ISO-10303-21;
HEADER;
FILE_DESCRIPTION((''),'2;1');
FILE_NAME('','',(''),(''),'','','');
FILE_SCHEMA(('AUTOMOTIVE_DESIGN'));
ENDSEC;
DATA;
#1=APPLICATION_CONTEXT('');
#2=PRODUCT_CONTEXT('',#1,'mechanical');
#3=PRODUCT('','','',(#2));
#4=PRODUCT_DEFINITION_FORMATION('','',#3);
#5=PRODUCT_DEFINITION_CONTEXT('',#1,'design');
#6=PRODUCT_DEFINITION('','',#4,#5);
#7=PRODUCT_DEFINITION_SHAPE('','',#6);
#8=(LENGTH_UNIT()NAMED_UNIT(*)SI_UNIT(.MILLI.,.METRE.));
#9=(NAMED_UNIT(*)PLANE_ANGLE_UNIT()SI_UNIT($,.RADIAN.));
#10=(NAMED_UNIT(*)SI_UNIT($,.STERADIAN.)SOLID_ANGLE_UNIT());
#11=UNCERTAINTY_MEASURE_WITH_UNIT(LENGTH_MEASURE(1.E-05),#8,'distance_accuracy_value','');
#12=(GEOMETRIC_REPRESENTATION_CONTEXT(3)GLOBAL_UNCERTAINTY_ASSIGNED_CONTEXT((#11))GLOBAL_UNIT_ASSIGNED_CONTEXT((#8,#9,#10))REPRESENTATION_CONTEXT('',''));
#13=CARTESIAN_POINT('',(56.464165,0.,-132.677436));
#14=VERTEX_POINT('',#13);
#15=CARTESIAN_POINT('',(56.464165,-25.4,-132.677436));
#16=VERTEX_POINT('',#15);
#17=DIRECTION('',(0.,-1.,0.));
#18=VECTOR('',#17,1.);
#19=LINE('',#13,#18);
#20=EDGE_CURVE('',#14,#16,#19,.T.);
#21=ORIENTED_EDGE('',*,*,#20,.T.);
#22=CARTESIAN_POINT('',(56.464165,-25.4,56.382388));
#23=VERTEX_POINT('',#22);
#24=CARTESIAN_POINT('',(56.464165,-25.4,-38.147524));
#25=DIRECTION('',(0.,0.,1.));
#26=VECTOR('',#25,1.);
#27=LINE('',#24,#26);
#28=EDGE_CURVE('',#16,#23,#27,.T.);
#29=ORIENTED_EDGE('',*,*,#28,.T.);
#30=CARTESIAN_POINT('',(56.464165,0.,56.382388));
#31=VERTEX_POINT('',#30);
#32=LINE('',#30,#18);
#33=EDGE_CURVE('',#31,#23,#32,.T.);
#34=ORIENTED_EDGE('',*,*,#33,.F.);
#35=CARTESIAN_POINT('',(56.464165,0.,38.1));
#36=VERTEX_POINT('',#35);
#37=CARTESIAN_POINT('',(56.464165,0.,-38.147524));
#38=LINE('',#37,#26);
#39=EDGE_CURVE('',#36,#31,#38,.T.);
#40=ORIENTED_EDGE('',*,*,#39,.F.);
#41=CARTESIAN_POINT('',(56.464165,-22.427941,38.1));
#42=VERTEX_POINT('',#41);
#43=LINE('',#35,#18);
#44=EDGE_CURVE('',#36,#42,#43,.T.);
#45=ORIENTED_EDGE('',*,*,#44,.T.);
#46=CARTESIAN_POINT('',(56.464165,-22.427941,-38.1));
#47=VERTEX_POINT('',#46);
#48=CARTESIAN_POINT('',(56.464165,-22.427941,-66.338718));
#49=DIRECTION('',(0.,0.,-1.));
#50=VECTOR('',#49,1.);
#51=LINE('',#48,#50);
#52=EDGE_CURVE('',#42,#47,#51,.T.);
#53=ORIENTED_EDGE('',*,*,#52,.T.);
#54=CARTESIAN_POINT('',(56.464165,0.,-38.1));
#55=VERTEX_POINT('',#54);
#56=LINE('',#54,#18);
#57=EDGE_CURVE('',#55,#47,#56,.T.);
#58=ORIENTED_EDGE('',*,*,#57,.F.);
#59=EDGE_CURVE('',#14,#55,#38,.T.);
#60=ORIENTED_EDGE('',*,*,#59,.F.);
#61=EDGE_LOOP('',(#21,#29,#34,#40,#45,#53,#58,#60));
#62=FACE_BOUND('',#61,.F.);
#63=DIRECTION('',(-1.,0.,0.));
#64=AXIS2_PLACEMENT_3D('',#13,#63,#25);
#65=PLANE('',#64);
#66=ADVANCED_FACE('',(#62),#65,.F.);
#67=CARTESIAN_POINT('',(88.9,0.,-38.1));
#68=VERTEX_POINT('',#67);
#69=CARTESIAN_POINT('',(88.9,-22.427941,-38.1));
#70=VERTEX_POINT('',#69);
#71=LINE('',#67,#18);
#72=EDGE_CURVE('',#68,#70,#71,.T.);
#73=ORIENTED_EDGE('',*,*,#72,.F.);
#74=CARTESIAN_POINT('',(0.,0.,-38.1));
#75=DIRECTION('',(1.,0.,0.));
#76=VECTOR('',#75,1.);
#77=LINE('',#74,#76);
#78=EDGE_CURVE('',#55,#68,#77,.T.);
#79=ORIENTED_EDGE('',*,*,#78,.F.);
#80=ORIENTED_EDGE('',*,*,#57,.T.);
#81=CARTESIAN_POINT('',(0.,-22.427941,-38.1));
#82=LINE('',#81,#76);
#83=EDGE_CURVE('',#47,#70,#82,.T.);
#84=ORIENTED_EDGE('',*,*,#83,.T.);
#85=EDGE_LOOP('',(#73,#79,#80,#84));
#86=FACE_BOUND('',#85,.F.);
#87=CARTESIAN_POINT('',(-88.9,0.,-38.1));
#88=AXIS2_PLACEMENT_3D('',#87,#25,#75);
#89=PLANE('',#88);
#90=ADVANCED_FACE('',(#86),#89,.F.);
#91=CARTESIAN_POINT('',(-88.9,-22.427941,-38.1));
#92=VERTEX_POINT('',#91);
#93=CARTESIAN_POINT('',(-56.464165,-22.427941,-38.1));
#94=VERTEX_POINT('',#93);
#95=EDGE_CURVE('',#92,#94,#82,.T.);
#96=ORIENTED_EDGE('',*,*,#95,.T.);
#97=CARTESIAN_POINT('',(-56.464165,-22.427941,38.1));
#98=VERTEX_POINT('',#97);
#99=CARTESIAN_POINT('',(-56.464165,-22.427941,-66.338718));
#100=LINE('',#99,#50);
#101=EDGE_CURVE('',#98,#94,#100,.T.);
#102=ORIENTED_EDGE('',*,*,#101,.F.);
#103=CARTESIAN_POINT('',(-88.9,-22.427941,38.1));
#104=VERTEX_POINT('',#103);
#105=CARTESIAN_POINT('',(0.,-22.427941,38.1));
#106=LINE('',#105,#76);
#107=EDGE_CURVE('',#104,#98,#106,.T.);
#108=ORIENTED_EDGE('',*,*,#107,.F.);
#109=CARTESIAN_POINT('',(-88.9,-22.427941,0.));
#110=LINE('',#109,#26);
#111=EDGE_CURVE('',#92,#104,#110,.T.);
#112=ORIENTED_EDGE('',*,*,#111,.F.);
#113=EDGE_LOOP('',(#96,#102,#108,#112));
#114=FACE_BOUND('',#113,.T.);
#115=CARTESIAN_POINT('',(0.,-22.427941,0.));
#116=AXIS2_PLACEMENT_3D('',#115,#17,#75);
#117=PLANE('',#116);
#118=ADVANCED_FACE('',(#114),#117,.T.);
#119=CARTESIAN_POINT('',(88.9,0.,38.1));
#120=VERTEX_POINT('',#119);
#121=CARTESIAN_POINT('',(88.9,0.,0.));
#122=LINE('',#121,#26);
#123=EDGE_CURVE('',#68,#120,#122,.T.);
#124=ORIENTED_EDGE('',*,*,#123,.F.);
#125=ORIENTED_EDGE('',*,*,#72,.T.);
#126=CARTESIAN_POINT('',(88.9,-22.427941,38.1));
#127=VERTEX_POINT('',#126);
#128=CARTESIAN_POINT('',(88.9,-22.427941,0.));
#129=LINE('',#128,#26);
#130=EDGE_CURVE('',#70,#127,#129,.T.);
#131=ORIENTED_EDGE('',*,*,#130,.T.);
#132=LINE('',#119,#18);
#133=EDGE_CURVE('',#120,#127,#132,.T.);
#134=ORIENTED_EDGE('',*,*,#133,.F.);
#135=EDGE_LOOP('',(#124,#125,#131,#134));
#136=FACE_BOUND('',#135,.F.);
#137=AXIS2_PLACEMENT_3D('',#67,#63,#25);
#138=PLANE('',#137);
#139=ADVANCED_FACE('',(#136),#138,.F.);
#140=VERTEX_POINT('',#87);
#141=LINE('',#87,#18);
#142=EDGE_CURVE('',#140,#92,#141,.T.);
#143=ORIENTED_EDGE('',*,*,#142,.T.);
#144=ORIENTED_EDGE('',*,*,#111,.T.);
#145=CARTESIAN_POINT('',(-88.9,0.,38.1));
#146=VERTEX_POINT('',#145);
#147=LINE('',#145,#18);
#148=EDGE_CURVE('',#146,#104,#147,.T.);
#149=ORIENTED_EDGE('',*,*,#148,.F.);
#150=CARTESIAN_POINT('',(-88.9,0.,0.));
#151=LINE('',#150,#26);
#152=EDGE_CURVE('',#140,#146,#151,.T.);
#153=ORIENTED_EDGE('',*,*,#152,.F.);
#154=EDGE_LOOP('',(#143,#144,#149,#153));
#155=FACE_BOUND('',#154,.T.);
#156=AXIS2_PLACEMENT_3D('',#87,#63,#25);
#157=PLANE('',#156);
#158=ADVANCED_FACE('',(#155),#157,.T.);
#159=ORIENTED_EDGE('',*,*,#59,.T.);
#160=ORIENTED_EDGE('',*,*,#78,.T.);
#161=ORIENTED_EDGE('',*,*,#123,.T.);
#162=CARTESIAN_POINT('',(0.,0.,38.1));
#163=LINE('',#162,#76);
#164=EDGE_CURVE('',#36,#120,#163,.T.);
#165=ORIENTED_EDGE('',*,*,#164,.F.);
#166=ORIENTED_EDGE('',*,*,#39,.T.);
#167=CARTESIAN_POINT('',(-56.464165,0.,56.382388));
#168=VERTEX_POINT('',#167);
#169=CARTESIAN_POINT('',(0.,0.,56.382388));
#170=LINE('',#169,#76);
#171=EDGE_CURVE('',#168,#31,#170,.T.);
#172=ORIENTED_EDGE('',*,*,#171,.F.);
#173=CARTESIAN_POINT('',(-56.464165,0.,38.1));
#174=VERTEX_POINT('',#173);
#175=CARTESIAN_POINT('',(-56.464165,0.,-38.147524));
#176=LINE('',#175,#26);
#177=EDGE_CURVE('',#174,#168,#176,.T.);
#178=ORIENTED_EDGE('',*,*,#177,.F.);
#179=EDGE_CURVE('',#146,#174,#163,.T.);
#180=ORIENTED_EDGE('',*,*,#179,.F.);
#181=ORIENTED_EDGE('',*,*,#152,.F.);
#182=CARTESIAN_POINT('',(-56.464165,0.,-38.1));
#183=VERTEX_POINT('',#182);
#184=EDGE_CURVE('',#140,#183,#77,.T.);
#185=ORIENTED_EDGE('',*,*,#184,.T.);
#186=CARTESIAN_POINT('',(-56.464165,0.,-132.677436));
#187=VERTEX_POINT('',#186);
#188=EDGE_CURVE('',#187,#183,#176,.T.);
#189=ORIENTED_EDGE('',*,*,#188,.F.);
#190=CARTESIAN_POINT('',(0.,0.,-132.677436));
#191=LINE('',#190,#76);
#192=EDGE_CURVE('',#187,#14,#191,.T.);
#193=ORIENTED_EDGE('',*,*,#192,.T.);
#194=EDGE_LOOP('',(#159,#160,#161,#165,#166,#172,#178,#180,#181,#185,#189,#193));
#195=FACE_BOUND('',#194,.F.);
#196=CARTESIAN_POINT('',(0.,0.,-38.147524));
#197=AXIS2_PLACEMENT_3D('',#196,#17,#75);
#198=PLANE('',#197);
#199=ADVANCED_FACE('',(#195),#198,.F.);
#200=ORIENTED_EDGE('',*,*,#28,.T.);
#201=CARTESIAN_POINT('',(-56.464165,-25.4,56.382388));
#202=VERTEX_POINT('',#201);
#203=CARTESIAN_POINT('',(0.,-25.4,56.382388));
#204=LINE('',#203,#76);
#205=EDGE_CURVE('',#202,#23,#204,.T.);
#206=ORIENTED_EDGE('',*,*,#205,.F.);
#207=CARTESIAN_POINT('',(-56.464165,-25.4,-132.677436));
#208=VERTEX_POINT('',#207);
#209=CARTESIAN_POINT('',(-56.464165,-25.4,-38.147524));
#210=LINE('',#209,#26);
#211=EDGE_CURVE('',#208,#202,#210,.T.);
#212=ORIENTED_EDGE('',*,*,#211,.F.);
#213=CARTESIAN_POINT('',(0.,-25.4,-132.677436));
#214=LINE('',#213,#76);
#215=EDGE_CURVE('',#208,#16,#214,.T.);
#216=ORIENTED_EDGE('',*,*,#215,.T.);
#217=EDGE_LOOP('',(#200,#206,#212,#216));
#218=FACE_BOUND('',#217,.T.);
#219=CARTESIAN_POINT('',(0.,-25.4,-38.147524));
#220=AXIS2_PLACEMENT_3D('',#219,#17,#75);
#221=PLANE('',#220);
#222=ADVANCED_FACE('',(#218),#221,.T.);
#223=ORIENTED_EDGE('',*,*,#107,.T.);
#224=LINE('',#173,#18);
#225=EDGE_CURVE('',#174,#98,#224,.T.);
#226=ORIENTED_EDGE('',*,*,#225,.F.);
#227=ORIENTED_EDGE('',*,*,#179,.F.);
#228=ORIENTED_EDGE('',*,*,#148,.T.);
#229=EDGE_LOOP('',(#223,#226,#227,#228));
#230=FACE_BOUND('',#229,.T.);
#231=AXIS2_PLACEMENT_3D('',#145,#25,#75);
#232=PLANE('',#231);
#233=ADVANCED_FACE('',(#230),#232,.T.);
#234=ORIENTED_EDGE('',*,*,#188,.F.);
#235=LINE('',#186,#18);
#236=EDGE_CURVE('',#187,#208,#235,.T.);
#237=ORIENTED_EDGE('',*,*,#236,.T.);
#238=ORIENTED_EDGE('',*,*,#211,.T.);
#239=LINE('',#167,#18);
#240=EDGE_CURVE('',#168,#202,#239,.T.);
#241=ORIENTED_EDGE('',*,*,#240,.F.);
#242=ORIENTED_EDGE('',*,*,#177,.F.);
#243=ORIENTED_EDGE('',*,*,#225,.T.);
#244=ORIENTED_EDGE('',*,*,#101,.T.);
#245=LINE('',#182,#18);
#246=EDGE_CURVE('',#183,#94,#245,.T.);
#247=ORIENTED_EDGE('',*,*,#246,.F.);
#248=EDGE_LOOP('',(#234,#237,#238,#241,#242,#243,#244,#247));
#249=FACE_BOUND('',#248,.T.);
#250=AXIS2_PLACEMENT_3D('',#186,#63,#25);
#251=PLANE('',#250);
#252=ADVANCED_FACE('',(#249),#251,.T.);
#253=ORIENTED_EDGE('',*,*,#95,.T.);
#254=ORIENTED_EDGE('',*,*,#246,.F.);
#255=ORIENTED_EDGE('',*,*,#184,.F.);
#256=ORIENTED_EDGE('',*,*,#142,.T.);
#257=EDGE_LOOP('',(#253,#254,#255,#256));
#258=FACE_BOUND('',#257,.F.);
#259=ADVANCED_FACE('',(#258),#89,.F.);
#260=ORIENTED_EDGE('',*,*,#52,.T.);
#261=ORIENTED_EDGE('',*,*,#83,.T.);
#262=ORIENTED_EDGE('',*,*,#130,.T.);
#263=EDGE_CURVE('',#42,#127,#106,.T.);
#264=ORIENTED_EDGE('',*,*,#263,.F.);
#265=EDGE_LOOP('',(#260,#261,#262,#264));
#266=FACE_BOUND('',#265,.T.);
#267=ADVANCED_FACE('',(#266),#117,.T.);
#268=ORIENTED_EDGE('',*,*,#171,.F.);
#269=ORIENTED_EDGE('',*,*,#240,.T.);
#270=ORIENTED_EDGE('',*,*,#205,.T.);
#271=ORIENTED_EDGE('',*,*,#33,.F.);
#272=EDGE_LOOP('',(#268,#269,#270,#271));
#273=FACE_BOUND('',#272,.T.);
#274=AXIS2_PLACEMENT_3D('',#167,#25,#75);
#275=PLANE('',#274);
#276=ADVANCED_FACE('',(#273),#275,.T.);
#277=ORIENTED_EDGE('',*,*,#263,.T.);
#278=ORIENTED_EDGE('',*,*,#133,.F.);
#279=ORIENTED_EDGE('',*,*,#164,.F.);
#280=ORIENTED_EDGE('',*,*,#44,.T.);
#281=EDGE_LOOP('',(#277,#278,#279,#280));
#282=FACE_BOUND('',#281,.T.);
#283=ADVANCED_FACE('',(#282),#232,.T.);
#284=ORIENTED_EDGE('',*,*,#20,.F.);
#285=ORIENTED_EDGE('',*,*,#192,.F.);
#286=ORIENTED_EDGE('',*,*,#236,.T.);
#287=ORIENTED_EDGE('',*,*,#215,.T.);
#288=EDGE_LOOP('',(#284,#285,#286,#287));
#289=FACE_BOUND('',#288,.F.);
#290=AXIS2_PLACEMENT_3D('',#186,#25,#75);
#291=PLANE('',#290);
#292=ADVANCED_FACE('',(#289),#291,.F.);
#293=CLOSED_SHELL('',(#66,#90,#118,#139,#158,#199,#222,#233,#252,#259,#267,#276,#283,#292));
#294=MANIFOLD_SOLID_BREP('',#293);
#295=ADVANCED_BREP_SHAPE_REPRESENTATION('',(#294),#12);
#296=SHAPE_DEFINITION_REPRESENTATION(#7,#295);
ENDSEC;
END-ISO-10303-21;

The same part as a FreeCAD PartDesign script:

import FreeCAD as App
import Part
import Sketcher
from FreeCAD import Vector
Q = App.Units.Quantity


def add_polygon(sketch, points):
    """Adds a closed chain of lines whose ends are joined by coincident constraints."""
    first, n = sketch.GeometryCount, len(points)
    for a, b in zip(points, points[1:] + points[:1]):
        sketch.addGeometry(Part.LineSegment(App.Vector(*a, 0), App.Vector(*b, 0)), False)
    for i in range(n):
        sketch.addConstraint(Sketcher.Constraint("Coincident", first + i, 2, first + (i + 1) % n, 1))

doc = App.newDocument("Part")
body = doc.addObject("PartDesign::Body", "Body")

# Sketch on XZ plane
sketch1 = body.newObject("Sketcher::SketchObject", "Sketch")
sketch1.AttachmentSupport = (doc.getObject("XZ_Plane"), [""])
sketch1.MapMode = "FlatFace"
add_polygon(sketch1, [(-88.9, 38.1), (-88.9, -38.1), (88.9, -38.1), (88.9, 38.1)])  # lines 0-3
sketch1.addConstraint(Sketcher.Constraint("Vertical", 0))
sketch1.addConstraint(Sketcher.Constraint("Horizontal", 1))
sketch1.addConstraint(Sketcher.Constraint("Vertical", 2))
sketch1.addConstraint(Sketcher.Constraint("Horizontal", 3))
sketch1.addConstraint(Sketcher.Constraint("Symmetric", 0, 2, 2, 2, -1, 1))
sketch1.addConstraint(Sketcher.Constraint("DistanceX", 1, 1, 1, 2, Q("7 in")))
sketch1.addConstraint(Sketcher.Constraint("DistanceY", 0, 2, 0, 1, Q("3 in")))
pad1 = body.newObject("PartDesign::Pad", "Pad")
pad1.Profile = sketch1
pad1.Length = 22.427941

# Sketch on XZ plane
sketch2 = body.newObject("Sketcher::SketchObject", "Sketch001")
sketch2.AttachmentSupport = (doc.getObject("XZ_Plane"), [""])
sketch2.MapMode = "FlatFace"
add_polygon(sketch2, [(-56.464165, 56.382388), (-56.464165, -132.677436), (56.464165, -132.677436), (56.464165, 56.382388)])  # lines 0-3
sketch2.addConstraint(Sketcher.Constraint("Vertical", 0))
sketch2.addConstraint(Sketcher.Constraint("Horizontal", 1))
sketch2.addConstraint(Sketcher.Constraint("Vertical", 2))
sketch2.addConstraint(Sketcher.Constraint("Horizontal", 3))
sketch2.addConstraint(Sketcher.Constraint("DistanceY", 0, 2, 0, 1, Q("7.4433002 in")))
sketch2.addConstraint(Sketcher.Constraint("DistanceX", 1, 1, 1, 2, Q("112.92833 mm")))
sketch2.addConstraint(Sketcher.Constraint("DistanceX", 0, 2, -1, 1, Q("56.464165 mm")))
sketch2.addConstraint(Sketcher.Constraint("DistanceY", 0, 2, -1, 1, Q("132.677436 mm")))
pad2 = body.newObject("PartDesign::Pad", "Pad001")
pad2.Profile = sketch2
pad2.Length = Q("1 in")

doc.recompute()
